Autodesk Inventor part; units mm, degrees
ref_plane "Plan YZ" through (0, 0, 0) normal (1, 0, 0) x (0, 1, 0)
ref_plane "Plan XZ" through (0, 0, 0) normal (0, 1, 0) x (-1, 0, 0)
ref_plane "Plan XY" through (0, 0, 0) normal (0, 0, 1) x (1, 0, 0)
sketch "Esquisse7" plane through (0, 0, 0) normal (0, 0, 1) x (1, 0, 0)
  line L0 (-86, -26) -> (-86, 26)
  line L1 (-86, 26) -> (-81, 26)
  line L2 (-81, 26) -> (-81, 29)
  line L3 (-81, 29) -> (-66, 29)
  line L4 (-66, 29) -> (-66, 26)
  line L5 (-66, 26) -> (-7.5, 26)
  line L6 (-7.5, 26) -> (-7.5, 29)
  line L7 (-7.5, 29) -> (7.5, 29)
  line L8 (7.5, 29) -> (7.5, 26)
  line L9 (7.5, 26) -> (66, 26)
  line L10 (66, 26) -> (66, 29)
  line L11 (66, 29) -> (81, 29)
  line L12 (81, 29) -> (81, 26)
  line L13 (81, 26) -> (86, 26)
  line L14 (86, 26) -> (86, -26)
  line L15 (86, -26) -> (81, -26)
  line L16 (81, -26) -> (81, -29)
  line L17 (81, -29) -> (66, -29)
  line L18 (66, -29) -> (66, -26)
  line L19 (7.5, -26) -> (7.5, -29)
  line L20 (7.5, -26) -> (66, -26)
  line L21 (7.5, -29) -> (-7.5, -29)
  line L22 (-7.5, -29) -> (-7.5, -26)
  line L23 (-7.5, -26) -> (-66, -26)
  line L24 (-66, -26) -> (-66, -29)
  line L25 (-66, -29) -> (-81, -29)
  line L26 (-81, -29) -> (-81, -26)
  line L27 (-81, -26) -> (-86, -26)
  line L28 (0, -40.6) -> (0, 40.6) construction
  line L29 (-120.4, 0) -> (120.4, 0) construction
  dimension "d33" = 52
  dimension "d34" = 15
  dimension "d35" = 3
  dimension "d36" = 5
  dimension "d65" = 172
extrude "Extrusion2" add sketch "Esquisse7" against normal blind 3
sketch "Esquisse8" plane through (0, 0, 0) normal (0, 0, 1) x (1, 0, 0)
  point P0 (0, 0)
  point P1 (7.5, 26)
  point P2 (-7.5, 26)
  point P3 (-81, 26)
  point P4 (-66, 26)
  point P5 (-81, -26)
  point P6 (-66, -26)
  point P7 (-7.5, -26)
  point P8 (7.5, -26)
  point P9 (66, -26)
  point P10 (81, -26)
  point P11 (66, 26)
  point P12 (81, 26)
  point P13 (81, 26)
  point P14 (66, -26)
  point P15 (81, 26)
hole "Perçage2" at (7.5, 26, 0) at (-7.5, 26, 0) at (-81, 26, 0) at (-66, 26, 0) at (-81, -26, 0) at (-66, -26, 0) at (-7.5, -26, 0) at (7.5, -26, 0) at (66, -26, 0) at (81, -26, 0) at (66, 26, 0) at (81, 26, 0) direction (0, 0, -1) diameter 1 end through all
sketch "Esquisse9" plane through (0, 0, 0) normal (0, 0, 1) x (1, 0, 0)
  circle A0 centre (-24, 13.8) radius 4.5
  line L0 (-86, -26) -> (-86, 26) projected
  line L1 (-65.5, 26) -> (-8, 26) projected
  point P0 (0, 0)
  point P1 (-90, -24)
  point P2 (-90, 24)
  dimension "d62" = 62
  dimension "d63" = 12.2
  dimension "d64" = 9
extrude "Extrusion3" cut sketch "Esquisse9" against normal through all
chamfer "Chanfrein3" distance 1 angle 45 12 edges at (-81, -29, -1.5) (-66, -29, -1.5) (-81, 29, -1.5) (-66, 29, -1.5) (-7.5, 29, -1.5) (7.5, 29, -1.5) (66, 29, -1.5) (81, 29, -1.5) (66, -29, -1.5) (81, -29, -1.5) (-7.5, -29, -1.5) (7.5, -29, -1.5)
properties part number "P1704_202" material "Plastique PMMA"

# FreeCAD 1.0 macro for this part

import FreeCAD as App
import Part
import Sketcher

V = App.Vector


def edges_at(feature, points):
    """Names of the edges that pass closest to the given points."""
    edges = feature.Shape.Edges
    near = lambda p: min(range(len(edges)), key=lambda i: edges[i].distToShape(Part.Vertex(*p))[0])
    return sorted({f"Edge{near(p) + 1}" for p in points})


def add_polygon(sketch, points):
    """Adds a closed chain of lines whose ends are joined by coincident constraints."""
    first, n = sketch.GeometryCount, len(points)
    for a, b in zip(points, points[1:] + points[:1]):
        sketch.addGeometry(Part.LineSegment(App.Vector(*a, 0), App.Vector(*b, 0)), False)
    for i in range(n):
        sketch.addConstraint(Sketcher.Constraint("Coincident", first + i, 2, first + (i + 1) % n, 1))

doc = App.newDocument("Part")
body = doc.addObject("PartDesign::Body", "Body")

# Sketch on XY plane
sketch1 = body.newObject("Sketcher::SketchObject", "Sketch")
sketch1.AttachmentSupport = (doc.getObject("XY_Plane"), [""])
sketch1.MapMode = "FlatFace"
add_polygon(sketch1, [(-86, 26), (-86, -26), (-81, -26), (-81, -29), (-66, -29), (-66, -26), (-7.5, -26), (-7.5, -29), (7.5, -29), (7.5, -26), (66, -26), (66, -29), (81, -29), (81, -26), (86, -26), (86, 26), (81, 26), (81, 29), (66, 29), (66, 26), (7.5, 26), (7.5, 29), (-7.5, 29), (-7.5, 26), (-66, 26), (-66, 29), (-81, 29), (-81, 26)])  # lines 0-27
sketch1.addConstraint([
    Sketcher.Constraint("Vertical", 0),
    Sketcher.Constraint("Horizontal", 1),
    Sketcher.Constraint("Vertical", 2),
    Sketcher.Constraint("Horizontal", 3),
    Sketcher.Constraint("Vertical", 4),
    Sketcher.Constraint("Horizontal", 5),
    Sketcher.Constraint("Vertical", 6),
    Sketcher.Constraint("Horizontal", 7),
    Sketcher.Constraint("Vertical", 8),
    Sketcher.Constraint("Horizontal", 9),
    Sketcher.Constraint("Vertical", 10),
    Sketcher.Constraint("Horizontal", 11),
    Sketcher.Constraint("Vertical", 12),
    Sketcher.Constraint("Horizontal", 13),
    Sketcher.Constraint("Vertical", 14),
    Sketcher.Constraint("Horizontal", 15),
    Sketcher.Constraint("Vertical", 16),
    Sketcher.Constraint("Horizontal", 17),
    Sketcher.Constraint("Vertical", 18),
    Sketcher.Constraint("Horizontal", 19),
    Sketcher.Constraint("Vertical", 20),
    Sketcher.Constraint("Horizontal", 21),
    Sketcher.Constraint("Vertical", 22),
    Sketcher.Constraint("Horizontal", 23),
    Sketcher.Constraint("Vertical", 24),
    Sketcher.Constraint("Horizontal", 25),
    Sketcher.Constraint("Vertical", 26),
    Sketcher.Constraint("Horizontal", 27),
    Sketcher.Constraint("Symmetric", 0, 2, 14, 2, -1, 1),
    Sketcher.Constraint("Symmetric", 2, 2, 16, 2, -1, 1),
    Sketcher.Constraint("Symmetric", 4, 2, 18, 2, -1, 1),
    Sketcher.Constraint("Symmetric", 6, 2, 20, 2, -1, 1),
    Sketcher.Constraint("Symmetric", 8, 2, 22, 2, -1, 1),
    Sketcher.Constraint("Symmetric", 10, 2, 24, 2, -1, 1),
    Sketcher.Constraint("Symmetric", 12, 2, 26, 2, -1, 1),
    Sketcher.Constraint("Symmetric", 5, 2, 8, 2, -2),
    Sketcher.Constraint("Symmetric", 3, 2, 10, 2, -2),
    Sketcher.Constraint("Symmetric", 1, 2, 12, 2, -2),
    Sketcher.Constraint("Horizontal", 1, 2, 4, 2),
    Sketcher.Constraint("Horizontal", 3, 2, 6, 2),
    Sketcher.Constraint("Equal", 3, 7),
    Sketcher.Constraint("DistanceX", 1, 1, 1, 2, 5.0),
    Sketcher.Constraint("DistanceX", 3, 1, 3, 2, 15.0),
    Sketcher.Constraint("DistanceY", 0, 2, 0, 1, 52.0),
    Sketcher.Constraint("DistanceY", 2, 2, 2, 1, 3.0),
    Sketcher.Constraint("DistanceX", 5, 1, 5, 2, 58.5),
])
pad1 = body.newObject("PartDesign::Pad", "Pad")
pad1.Profile = sketch1
pad1.Length = 3
pad1.Reversed = True

# Sketch on XY plane
sketch2 = body.newObject("Sketcher::SketchObject", "Sketch001")
sketch2.AttachmentSupport = (doc.getObject("XY_Plane"), [""])
sketch2.MapMode = "FlatFace"
sketch2.addGeometry([
    Part.Circle(V(7.5, 26, 0), V(0, 0, 1), 0.5),  # 0
    Part.Circle(V(-7.5, 26, 0), V(0, 0, 1), 0.5),  # 1
    Part.Circle(V(-81, 26, 0), V(0, 0, 1), 0.5),  # 2
    Part.Circle(V(-66, 26, 0), V(0, 0, 1), 0.5),  # 3
    Part.Circle(V(-81, -26, 0), V(0, 0, 1), 0.5),  # 4
    Part.Circle(V(-66, -26, 0), V(0, 0, 1), 0.5),  # 5
    Part.Circle(V(-7.5, -26, 0), V(0, 0, 1), 0.5),  # 6
    Part.Circle(V(7.5, -26, 0), V(0, 0, 1), 0.5),  # 7
    Part.Circle(V(66, -26, 0), V(0, 0, 1), 0.5),  # 8
    Part.Circle(V(81, -26, 0), V(0, 0, 1), 0.5),  # 9
    Part.Circle(V(66, 26, 0), V(0, 0, 1), 0.5),  # 10
    Part.Circle(V(81, 26, 0), V(0, 0, 1), 0.5),  # 11
], False)
sketch2.addConstraint([
    Sketcher.Constraint("Equal", 0, 1),
    Sketcher.Constraint("Equal", 1, 2),
    Sketcher.Constraint("Equal", 2, 3),
    Sketcher.Constraint("Equal", 3, 4),
    Sketcher.Constraint("Equal", 4, 5),
    Sketcher.Constraint("Equal", 5, 6),
    Sketcher.Constraint("Equal", 6, 7),
    Sketcher.Constraint("Equal", 7, 8),
    Sketcher.Constraint("Equal", 8, 9),
    Sketcher.Constraint("Equal", 9, 10),
    Sketcher.Constraint("Equal", 10, 11),
    Sketcher.Constraint("Symmetric", 0, 3, 6, 3, -1, 1),
    Sketcher.Constraint("Symmetric", 1, 3, 7, 3, -1, 1),
    Sketcher.Constraint("Symmetric", 3, 3, 8, 3, -1, 1),
    Sketcher.Constraint("Symmetric", 2, 3, 9, 3, -1, 1),
    Sketcher.Constraint("Symmetric", 5, 3, 10, 3, -1, 1),
    Sketcher.Constraint("Symmetric", 4, 3, 11, 3, -1, 1),
    Sketcher.Constraint("Symmetric", 0, 3, 1, 3, -2),
    Sketcher.Constraint("Symmetric", 5, 3, 8, 3, -2),
    Sketcher.Constraint("Symmetric", 4, 3, 9, 3, -2),
    Sketcher.Constraint("Horizontal", 1, 3, 2, 3),
    Sketcher.Constraint("Horizontal", 2, 3, 3, 3),
    Sketcher.Constraint("Diameter", 0, 1.0),
    Sketcher.Constraint("DistanceY", -1, 1, 0, 3, 26.0),
    Sketcher.Constraint("DistanceX", 2, 3, -1, 1, 81.0),
    Sketcher.Constraint("DistanceX", 3, 3, -1, 1, 66.0),
    Sketcher.Constraint("DistanceX", 1, 3, 0, 3, 15.0),
])
doc.recompute()
hole = body.newObject("PartDesign::Hole", "Hole")
hole.Profile = sketch2
hole.ThreadType = "None"
hole.Diameter = 1
hole.DepthType = "ThroughAll"

# Sketch on XY plane
sketch3 = body.newObject("Sketcher::SketchObject", "Sketch002")
sketch3.AttachmentSupport = (doc.getObject("XY_Plane"), [""])
sketch3.MapMode = "FlatFace"
sketch3.addGeometry(Part.Circle(V(-24, 13.8, 0), V(0, 0, 1), 4.5), False)
sketch3.addConstraint([
    Sketcher.Constraint("Diameter", 0, 9.0),
    Sketcher.Constraint("DistanceX", 0, 3, -1, 1, 24.0),
    Sketcher.Constraint("DistanceY", -1, 1, 0, 3, 13.8),
])
pocket1 = body.newObject("PartDesign::Pocket", "Pocket")
pocket1.Profile = sketch3
pocket1.Type = "ThroughAll"
doc.recompute()

chamfer = body.newObject("PartDesign::Chamfer", "Chamfer")
chamfer.Base = (pocket1, edges_at(pocket1, [
    (-81, -29, -1.5),
    (-66, -29, -1.5),
    (-81, 29, -1.5),
    (-66, 29, -1.5),
    (-7.5, 29, -1.5),
    (7.5, 29, -1.5),
    (66, 29, -1.5),
    (81, 29, -1.5),
    (66, -29, -1.5),
    (81, -29, -1.5),
    (-7.5, -29, -1.5),
    (7.5, -29, -1.5),
]))
chamfer.Size = 1

doc.recompute()
